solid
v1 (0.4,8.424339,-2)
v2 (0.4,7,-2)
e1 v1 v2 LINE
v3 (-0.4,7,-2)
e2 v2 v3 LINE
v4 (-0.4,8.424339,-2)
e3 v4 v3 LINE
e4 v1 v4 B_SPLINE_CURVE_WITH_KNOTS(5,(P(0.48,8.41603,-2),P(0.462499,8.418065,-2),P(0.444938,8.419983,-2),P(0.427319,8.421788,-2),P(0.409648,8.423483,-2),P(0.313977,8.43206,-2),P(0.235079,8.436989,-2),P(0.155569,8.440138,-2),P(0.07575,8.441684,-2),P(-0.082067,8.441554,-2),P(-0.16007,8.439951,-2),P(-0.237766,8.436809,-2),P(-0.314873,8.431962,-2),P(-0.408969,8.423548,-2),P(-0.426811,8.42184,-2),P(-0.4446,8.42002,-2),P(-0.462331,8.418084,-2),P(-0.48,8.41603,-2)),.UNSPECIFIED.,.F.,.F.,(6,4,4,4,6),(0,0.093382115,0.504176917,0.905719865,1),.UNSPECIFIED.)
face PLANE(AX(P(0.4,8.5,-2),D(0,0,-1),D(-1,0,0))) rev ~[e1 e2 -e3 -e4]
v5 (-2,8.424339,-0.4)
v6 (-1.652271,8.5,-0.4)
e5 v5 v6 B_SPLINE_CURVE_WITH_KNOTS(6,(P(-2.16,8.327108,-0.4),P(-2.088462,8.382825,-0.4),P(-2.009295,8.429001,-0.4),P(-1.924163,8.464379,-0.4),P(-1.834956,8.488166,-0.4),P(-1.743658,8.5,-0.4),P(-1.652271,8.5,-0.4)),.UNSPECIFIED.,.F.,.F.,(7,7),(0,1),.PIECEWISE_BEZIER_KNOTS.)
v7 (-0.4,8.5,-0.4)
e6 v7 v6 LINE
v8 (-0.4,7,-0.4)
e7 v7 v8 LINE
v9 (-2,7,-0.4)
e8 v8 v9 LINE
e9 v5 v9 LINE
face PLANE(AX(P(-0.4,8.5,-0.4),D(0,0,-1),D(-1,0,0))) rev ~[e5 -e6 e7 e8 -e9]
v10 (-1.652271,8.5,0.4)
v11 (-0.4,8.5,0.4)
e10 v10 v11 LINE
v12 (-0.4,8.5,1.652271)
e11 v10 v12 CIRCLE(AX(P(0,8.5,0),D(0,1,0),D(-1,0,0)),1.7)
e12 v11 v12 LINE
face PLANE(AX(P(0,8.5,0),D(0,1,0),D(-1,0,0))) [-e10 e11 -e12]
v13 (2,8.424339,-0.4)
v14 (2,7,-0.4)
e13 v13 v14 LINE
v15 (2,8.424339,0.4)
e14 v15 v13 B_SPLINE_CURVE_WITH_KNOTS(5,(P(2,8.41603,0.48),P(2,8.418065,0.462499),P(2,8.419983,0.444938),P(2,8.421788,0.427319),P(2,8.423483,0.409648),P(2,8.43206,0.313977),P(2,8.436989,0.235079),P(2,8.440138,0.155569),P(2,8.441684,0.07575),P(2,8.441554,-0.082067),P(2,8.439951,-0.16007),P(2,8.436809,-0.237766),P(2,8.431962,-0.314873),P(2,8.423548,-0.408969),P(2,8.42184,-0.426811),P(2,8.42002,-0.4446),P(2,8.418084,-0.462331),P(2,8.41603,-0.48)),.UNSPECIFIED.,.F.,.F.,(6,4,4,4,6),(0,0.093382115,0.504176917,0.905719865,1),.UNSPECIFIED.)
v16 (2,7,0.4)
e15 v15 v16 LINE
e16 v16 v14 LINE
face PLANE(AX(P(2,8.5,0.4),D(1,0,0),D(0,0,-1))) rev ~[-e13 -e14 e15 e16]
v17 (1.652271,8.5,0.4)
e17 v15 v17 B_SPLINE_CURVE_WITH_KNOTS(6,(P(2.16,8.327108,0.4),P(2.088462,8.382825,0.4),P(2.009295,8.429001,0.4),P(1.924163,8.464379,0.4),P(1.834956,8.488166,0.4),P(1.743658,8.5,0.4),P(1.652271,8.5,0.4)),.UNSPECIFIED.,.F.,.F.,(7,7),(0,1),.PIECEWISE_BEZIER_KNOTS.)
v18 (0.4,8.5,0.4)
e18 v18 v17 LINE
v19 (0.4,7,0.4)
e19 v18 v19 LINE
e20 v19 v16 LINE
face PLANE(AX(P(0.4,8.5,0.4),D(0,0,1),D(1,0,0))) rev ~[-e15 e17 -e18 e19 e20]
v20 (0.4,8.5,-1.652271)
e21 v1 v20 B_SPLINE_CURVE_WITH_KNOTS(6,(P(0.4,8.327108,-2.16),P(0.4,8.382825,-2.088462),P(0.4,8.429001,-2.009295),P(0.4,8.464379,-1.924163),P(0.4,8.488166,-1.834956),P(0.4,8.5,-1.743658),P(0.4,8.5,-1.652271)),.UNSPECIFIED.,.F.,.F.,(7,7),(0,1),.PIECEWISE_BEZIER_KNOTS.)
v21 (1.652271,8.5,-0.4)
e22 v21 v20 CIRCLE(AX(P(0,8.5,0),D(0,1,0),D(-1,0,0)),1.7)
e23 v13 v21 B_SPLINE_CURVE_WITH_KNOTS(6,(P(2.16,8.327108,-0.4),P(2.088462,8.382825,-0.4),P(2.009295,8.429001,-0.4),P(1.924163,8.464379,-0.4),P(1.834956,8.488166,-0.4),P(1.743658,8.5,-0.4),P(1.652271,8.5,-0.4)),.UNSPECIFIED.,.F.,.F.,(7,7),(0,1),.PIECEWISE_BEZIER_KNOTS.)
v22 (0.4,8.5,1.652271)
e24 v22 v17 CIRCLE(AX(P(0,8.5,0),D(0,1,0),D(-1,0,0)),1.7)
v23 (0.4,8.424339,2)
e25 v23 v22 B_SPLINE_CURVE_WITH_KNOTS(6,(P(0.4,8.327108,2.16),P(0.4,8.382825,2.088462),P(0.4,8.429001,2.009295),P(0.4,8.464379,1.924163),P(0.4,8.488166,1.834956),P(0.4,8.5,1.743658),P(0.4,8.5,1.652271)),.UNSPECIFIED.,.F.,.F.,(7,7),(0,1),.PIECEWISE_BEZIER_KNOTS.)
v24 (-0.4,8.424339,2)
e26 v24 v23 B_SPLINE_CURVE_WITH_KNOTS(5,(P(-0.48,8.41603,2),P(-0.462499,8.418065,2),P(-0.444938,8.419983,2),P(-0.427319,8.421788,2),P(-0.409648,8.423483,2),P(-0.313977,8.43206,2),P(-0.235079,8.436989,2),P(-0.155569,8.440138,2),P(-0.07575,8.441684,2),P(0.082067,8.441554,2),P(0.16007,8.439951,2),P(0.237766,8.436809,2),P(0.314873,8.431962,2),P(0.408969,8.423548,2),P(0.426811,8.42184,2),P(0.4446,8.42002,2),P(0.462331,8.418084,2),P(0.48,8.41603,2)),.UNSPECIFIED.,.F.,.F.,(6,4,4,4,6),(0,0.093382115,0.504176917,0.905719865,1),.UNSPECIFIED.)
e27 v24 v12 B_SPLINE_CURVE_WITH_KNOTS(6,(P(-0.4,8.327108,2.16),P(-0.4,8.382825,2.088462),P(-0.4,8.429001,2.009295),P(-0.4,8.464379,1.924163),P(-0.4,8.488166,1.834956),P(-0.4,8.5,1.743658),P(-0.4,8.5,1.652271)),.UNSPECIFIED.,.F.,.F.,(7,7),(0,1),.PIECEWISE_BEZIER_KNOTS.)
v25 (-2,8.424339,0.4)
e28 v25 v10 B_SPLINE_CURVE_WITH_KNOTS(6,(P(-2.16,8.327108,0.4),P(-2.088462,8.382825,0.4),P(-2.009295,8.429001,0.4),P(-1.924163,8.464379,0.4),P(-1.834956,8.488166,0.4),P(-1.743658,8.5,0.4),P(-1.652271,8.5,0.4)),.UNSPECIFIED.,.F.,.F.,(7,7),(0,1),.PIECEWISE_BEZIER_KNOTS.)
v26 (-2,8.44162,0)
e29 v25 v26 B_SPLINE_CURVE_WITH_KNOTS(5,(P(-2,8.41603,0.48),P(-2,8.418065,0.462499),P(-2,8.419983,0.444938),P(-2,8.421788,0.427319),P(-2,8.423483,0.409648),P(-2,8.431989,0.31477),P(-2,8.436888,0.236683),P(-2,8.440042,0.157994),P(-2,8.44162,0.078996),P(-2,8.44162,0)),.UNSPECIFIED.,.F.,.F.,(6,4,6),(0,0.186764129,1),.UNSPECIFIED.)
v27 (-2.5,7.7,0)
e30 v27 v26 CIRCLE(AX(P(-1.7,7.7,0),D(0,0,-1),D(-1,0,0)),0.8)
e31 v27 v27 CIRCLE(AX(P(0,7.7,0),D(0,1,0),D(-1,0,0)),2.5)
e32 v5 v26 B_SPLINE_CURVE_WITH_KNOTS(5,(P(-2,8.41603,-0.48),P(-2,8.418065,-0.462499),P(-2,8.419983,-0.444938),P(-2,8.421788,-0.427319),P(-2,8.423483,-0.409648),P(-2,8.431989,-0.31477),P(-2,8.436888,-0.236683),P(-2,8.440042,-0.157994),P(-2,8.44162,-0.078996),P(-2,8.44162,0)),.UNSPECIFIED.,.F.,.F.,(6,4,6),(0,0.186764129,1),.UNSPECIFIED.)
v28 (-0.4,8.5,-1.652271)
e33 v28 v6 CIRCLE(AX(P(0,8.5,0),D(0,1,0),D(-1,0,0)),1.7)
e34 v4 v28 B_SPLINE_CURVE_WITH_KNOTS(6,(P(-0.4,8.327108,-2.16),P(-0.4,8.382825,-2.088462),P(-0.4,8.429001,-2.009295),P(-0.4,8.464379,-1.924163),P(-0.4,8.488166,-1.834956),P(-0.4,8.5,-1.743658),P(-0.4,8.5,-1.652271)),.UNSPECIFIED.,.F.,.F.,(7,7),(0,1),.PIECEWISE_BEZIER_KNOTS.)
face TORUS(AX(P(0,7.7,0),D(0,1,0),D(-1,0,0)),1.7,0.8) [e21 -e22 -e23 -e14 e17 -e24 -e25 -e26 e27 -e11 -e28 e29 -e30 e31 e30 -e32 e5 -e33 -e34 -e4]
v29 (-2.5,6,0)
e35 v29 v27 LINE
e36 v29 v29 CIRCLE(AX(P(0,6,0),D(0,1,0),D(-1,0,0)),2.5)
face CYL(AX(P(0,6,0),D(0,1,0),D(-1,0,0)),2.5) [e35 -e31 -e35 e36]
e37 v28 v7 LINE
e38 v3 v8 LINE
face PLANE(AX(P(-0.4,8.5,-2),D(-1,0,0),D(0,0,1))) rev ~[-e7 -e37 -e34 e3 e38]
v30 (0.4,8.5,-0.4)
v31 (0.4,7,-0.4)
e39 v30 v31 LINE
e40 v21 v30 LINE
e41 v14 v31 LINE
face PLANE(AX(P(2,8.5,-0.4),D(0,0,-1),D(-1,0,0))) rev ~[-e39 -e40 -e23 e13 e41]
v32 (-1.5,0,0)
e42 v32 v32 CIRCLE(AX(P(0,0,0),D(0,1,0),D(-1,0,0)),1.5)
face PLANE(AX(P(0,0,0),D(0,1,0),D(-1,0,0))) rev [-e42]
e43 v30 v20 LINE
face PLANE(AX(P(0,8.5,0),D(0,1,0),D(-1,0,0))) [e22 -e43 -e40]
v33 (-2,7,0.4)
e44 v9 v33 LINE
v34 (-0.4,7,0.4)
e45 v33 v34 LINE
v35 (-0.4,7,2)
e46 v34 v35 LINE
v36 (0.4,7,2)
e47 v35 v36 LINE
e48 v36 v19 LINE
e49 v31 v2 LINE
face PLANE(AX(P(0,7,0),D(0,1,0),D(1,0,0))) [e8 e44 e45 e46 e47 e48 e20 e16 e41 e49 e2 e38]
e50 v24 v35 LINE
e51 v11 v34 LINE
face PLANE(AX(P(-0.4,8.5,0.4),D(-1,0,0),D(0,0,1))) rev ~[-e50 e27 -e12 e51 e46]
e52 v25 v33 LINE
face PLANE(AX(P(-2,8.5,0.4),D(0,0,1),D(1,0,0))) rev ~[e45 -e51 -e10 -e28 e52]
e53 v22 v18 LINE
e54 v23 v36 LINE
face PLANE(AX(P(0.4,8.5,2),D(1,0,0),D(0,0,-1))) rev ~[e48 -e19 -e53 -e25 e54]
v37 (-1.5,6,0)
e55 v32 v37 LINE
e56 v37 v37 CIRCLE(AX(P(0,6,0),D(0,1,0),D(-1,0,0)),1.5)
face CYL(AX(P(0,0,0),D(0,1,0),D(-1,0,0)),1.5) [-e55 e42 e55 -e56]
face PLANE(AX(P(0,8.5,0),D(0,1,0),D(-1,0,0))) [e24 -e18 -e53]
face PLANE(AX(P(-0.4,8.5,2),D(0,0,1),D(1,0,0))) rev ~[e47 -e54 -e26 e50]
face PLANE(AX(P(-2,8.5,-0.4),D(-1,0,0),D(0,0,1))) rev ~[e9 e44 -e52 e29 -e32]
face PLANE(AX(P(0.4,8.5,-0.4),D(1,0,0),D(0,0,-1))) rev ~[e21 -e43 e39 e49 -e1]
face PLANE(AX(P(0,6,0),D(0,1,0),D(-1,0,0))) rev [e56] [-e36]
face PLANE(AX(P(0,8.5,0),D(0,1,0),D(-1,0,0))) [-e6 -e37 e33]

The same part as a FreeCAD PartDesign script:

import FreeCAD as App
import Part
import Sketcher
from FreeCAD import Vector


def edges_at(feature, points):
    """Names of the edges that pass closest to the given points."""
    edges = feature.Shape.Edges
    near = lambda p: min(range(len(edges)), key=lambda i: edges[i].distToShape(Part.Vertex(*p))[0])
    return sorted({f"Edge{near(p) + 1}" for p in points})

doc = App.newDocument("Part")
params = doc.addObject("Spreadsheet::Sheet", "Params")
for row, (alias, value) in enumerate([
    ("sketch1_width", "1 mm"),
    ("sketch1_height", "6 mm"),
    ("sketch1_width2", "1.5 mm"),
    ("revolution_angle", "360 deg"),
    ("fillet_radius", "0.8 mm"),
    ("sketch2_width", "1.6 mm"),
    ("sketch2_width2", "0.8 mm"),
    ("pocket1_length", "1.5 mm"),
], start=1):
    params.set(f"A{row}", alias)
    params.set(f"B{row}", "=" + value)
    params.setAlias(f"B{row}", alias)

body = doc.addObject("PartDesign::Body", "Body")

# Sketch on XY plane
sketch1 = body.newObject("Sketcher::SketchObject", "Sketch")
sketch1.AttachmentSupport = (doc.getObject("XY_Plane"), [""])
sketch1.MapMode = "FlatFace"
sketch1.addGeometry([
    Part.LineSegment(Vector(-1.5, 0, 0), Vector(0, 0, 0)),  # 0
    Part.LineSegment(Vector(0, 0, 0), Vector(0, 8.5, 0)),  # 1
    Part.LineSegment(Vector(0, 8.5, 0), Vector(-2.5, 8.5, 0)),  # 2
    Part.LineSegment(Vector(-2.5, 8.5, 0), Vector(-2.5, 6, 0)),  # 3
    Part.LineSegment(Vector(-2.5, 6, 0), Vector(-1.5, 6, 0)),  # 4
    Part.LineSegment(Vector(-1.5, 6, 0), Vector(-1.5, 0, 0)),  # 5
], False)
sketch1.addConstraint([
    Sketcher.Constraint("Coincident", 0, 2, 1, 1),
    Sketcher.Constraint("Coincident", 1, 2, 2, 1),
    Sketcher.Constraint("Coincident", 2, 2, 3, 1),
    Sketcher.Constraint("Coincident", 3, 2, 4, 1),
    Sketcher.Constraint("Coincident", 4, 2, 5, 1),
    Sketcher.Constraint("Coincident", 5, 2, 0, 1),
    Sketcher.Constraint("Horizontal", 0),
    Sketcher.Constraint("Vertical", 1),
    Sketcher.Constraint("Horizontal", 2),
    Sketcher.Constraint("Vertical", 3),
    Sketcher.Constraint("Horizontal", 4),
    Sketcher.Constraint("Vertical", 5),
    Sketcher.Constraint("Coincident", 0, 2, -1, 1),
    Sketcher.Constraint("Equal", 2, 3),
    Sketcher.Constraint("DistanceX", 4, 1, 4, 2, 1.0),
    Sketcher.Constraint("DistanceY", 5, 2, 5, 1, 6.0),
    Sketcher.Constraint("DistanceX", 0, 1, 0, 2, 1.5),
])
sketch1.setExpression("Constraints[14]", "Params.sketch1_width")
sketch1.setExpression("Constraints[15]", "Params.sketch1_height")
sketch1.setExpression("Constraints[16]", "Params.sketch1_width2")
revolution = body.newObject("PartDesign::Revolution", "Revolution")
revolution.Profile = sketch1
revolution.ReferenceAxis = (sketch1, ["V_Axis"])
revolution.setExpression("Angle", "Params.revolution_angle")
doc.recompute()

fillet = body.newObject("PartDesign::Fillet", "Fillet")
fillet.Base = (revolution, edges_at(revolution, [(2.5, 8.5, 0)]))
fillet.setExpression("Radius", "Params.fillet_radius")

# Sketch on XZ plane
sketch2 = body.newObject("Sketcher::SketchObject", "Sketch001")
sketch2.AttachmentSupport = (doc.getObject("XZ_Plane"), [""])
sketch2.MapMode = "FlatFace"
sketch2.AttachmentOffset = App.Placement(Vector(0, 0, -8.5), App.Rotation())
sketch2.addGeometry([
    Part.LineSegment(Vector(0.4, 2, 0), Vector(0.4, 0.4, 0)),  # 0
    Part.LineSegment(Vector(0.4, 0.4, 0), Vector(2, 0.4, 0)),  # 1
    Part.LineSegment(Vector(2, 0.4, 0), Vector(2, -0.4, 0)),  # 2
    Part.LineSegment(Vector(2, -0.4, 0), Vector(0.4, -0.4, 0)),  # 3
    Part.LineSegment(Vector(0.4, -0.4, 0), Vector(0.4, -2, 0)),  # 4
    Part.LineSegment(Vector(0.4, -2, 0), Vector(-0.4, -2, 0)),  # 5
    Part.LineSegment(Vector(-0.4, -2, 0), Vector(-0.4, -0.4, 0)),  # 6
    Part.LineSegment(Vector(-0.4, -0.4, 0), Vector(-2, -0.4, 0)),  # 7
    Part.LineSegment(Vector(-2, -0.4, 0), Vector(-2, 0.4, 0)),  # 8
    Part.LineSegment(Vector(-2, 0.4, 0), Vector(-0.4, 0.4, 0)),  # 9
    Part.LineSegment(Vector(-0.4, 0.4, 0), Vector(-0.4, 2, 0)),  # 10
    Part.LineSegment(Vector(-0.4, 2, 0), Vector(0.4, 2, 0)),  # 11
], False)
sketch2.addConstraint([
    Sketcher.Constraint("Coincident", 0, 2, 1, 1),
    Sketcher.Constraint("Coincident", 1, 2, 2, 1),
    Sketcher.Constraint("Coincident", 2, 2, 3, 1),
    Sketcher.Constraint("Coincident", 3, 2, 4, 1),
    Sketcher.Constraint("Coincident", 4, 2, 5, 1),
    Sketcher.Constraint("Coincident", 5, 2, 6, 1),
    Sketcher.Constraint("Coincident", 6, 2, 7, 1),
    Sketcher.Constraint("Coincident", 7, 2, 8, 1),
    Sketcher.Constraint("Coincident", 8, 2, 9, 1),
    Sketcher.Constraint("Coincident", 9, 2, 10, 1),
    Sketcher.Constraint("Coincident", 10, 2, 11, 1),
    Sketcher.Constraint("Coincident", 11, 2, 0, 1),
    Sketcher.Constraint("Vertical", 0),
    Sketcher.Constraint("Horizontal", 1),
    Sketcher.Constraint("Vertical", 2),
    Sketcher.Constraint("Horizontal", 3),
    Sketcher.Constraint("Vertical", 4),
    Sketcher.Constraint("Horizontal", 5),
    Sketcher.Constraint("Vertical", 6),
    Sketcher.Constraint("Horizontal", 7),
    Sketcher.Constraint("Vertical", 8),
    Sketcher.Constraint("Horizontal", 9),
    Sketcher.Constraint("Vertical", 10),
    Sketcher.Constraint("Horizontal", 11),
    Sketcher.Constraint("Symmetric", 0, 2, 6, 2, -1, 1),
    Sketcher.Constraint("Symmetric", 2, 2, 8, 2, -1, 1),
    Sketcher.Constraint("Symmetric", 4, 2, 10, 2, -1, 1),
    Sketcher.Constraint("Symmetric", 3, 2, 6, 2, -2),
    Sketcher.Constraint("Equal", 9, 0),
    Sketcher.Constraint("Equal", 11, 2),
    Sketcher.Constraint("DistanceX", 1, 1, 1, 2, 1.6),
    Sketcher.Constraint("DistanceX", 5, 2, 5, 1, 0.8),
])
sketch2.setExpression("Constraints[30]", "Params.sketch2_width")
sketch2.setExpression("Constraints[31]", "Params.sketch2_width2")
pocket1 = body.newObject("PartDesign::Pocket", "Pocket")
pocket1.Profile = sketch2
pocket1.setExpression("Length", "Params.pocket1_length")
pocket1.Reversed = True

doc.recompute()
